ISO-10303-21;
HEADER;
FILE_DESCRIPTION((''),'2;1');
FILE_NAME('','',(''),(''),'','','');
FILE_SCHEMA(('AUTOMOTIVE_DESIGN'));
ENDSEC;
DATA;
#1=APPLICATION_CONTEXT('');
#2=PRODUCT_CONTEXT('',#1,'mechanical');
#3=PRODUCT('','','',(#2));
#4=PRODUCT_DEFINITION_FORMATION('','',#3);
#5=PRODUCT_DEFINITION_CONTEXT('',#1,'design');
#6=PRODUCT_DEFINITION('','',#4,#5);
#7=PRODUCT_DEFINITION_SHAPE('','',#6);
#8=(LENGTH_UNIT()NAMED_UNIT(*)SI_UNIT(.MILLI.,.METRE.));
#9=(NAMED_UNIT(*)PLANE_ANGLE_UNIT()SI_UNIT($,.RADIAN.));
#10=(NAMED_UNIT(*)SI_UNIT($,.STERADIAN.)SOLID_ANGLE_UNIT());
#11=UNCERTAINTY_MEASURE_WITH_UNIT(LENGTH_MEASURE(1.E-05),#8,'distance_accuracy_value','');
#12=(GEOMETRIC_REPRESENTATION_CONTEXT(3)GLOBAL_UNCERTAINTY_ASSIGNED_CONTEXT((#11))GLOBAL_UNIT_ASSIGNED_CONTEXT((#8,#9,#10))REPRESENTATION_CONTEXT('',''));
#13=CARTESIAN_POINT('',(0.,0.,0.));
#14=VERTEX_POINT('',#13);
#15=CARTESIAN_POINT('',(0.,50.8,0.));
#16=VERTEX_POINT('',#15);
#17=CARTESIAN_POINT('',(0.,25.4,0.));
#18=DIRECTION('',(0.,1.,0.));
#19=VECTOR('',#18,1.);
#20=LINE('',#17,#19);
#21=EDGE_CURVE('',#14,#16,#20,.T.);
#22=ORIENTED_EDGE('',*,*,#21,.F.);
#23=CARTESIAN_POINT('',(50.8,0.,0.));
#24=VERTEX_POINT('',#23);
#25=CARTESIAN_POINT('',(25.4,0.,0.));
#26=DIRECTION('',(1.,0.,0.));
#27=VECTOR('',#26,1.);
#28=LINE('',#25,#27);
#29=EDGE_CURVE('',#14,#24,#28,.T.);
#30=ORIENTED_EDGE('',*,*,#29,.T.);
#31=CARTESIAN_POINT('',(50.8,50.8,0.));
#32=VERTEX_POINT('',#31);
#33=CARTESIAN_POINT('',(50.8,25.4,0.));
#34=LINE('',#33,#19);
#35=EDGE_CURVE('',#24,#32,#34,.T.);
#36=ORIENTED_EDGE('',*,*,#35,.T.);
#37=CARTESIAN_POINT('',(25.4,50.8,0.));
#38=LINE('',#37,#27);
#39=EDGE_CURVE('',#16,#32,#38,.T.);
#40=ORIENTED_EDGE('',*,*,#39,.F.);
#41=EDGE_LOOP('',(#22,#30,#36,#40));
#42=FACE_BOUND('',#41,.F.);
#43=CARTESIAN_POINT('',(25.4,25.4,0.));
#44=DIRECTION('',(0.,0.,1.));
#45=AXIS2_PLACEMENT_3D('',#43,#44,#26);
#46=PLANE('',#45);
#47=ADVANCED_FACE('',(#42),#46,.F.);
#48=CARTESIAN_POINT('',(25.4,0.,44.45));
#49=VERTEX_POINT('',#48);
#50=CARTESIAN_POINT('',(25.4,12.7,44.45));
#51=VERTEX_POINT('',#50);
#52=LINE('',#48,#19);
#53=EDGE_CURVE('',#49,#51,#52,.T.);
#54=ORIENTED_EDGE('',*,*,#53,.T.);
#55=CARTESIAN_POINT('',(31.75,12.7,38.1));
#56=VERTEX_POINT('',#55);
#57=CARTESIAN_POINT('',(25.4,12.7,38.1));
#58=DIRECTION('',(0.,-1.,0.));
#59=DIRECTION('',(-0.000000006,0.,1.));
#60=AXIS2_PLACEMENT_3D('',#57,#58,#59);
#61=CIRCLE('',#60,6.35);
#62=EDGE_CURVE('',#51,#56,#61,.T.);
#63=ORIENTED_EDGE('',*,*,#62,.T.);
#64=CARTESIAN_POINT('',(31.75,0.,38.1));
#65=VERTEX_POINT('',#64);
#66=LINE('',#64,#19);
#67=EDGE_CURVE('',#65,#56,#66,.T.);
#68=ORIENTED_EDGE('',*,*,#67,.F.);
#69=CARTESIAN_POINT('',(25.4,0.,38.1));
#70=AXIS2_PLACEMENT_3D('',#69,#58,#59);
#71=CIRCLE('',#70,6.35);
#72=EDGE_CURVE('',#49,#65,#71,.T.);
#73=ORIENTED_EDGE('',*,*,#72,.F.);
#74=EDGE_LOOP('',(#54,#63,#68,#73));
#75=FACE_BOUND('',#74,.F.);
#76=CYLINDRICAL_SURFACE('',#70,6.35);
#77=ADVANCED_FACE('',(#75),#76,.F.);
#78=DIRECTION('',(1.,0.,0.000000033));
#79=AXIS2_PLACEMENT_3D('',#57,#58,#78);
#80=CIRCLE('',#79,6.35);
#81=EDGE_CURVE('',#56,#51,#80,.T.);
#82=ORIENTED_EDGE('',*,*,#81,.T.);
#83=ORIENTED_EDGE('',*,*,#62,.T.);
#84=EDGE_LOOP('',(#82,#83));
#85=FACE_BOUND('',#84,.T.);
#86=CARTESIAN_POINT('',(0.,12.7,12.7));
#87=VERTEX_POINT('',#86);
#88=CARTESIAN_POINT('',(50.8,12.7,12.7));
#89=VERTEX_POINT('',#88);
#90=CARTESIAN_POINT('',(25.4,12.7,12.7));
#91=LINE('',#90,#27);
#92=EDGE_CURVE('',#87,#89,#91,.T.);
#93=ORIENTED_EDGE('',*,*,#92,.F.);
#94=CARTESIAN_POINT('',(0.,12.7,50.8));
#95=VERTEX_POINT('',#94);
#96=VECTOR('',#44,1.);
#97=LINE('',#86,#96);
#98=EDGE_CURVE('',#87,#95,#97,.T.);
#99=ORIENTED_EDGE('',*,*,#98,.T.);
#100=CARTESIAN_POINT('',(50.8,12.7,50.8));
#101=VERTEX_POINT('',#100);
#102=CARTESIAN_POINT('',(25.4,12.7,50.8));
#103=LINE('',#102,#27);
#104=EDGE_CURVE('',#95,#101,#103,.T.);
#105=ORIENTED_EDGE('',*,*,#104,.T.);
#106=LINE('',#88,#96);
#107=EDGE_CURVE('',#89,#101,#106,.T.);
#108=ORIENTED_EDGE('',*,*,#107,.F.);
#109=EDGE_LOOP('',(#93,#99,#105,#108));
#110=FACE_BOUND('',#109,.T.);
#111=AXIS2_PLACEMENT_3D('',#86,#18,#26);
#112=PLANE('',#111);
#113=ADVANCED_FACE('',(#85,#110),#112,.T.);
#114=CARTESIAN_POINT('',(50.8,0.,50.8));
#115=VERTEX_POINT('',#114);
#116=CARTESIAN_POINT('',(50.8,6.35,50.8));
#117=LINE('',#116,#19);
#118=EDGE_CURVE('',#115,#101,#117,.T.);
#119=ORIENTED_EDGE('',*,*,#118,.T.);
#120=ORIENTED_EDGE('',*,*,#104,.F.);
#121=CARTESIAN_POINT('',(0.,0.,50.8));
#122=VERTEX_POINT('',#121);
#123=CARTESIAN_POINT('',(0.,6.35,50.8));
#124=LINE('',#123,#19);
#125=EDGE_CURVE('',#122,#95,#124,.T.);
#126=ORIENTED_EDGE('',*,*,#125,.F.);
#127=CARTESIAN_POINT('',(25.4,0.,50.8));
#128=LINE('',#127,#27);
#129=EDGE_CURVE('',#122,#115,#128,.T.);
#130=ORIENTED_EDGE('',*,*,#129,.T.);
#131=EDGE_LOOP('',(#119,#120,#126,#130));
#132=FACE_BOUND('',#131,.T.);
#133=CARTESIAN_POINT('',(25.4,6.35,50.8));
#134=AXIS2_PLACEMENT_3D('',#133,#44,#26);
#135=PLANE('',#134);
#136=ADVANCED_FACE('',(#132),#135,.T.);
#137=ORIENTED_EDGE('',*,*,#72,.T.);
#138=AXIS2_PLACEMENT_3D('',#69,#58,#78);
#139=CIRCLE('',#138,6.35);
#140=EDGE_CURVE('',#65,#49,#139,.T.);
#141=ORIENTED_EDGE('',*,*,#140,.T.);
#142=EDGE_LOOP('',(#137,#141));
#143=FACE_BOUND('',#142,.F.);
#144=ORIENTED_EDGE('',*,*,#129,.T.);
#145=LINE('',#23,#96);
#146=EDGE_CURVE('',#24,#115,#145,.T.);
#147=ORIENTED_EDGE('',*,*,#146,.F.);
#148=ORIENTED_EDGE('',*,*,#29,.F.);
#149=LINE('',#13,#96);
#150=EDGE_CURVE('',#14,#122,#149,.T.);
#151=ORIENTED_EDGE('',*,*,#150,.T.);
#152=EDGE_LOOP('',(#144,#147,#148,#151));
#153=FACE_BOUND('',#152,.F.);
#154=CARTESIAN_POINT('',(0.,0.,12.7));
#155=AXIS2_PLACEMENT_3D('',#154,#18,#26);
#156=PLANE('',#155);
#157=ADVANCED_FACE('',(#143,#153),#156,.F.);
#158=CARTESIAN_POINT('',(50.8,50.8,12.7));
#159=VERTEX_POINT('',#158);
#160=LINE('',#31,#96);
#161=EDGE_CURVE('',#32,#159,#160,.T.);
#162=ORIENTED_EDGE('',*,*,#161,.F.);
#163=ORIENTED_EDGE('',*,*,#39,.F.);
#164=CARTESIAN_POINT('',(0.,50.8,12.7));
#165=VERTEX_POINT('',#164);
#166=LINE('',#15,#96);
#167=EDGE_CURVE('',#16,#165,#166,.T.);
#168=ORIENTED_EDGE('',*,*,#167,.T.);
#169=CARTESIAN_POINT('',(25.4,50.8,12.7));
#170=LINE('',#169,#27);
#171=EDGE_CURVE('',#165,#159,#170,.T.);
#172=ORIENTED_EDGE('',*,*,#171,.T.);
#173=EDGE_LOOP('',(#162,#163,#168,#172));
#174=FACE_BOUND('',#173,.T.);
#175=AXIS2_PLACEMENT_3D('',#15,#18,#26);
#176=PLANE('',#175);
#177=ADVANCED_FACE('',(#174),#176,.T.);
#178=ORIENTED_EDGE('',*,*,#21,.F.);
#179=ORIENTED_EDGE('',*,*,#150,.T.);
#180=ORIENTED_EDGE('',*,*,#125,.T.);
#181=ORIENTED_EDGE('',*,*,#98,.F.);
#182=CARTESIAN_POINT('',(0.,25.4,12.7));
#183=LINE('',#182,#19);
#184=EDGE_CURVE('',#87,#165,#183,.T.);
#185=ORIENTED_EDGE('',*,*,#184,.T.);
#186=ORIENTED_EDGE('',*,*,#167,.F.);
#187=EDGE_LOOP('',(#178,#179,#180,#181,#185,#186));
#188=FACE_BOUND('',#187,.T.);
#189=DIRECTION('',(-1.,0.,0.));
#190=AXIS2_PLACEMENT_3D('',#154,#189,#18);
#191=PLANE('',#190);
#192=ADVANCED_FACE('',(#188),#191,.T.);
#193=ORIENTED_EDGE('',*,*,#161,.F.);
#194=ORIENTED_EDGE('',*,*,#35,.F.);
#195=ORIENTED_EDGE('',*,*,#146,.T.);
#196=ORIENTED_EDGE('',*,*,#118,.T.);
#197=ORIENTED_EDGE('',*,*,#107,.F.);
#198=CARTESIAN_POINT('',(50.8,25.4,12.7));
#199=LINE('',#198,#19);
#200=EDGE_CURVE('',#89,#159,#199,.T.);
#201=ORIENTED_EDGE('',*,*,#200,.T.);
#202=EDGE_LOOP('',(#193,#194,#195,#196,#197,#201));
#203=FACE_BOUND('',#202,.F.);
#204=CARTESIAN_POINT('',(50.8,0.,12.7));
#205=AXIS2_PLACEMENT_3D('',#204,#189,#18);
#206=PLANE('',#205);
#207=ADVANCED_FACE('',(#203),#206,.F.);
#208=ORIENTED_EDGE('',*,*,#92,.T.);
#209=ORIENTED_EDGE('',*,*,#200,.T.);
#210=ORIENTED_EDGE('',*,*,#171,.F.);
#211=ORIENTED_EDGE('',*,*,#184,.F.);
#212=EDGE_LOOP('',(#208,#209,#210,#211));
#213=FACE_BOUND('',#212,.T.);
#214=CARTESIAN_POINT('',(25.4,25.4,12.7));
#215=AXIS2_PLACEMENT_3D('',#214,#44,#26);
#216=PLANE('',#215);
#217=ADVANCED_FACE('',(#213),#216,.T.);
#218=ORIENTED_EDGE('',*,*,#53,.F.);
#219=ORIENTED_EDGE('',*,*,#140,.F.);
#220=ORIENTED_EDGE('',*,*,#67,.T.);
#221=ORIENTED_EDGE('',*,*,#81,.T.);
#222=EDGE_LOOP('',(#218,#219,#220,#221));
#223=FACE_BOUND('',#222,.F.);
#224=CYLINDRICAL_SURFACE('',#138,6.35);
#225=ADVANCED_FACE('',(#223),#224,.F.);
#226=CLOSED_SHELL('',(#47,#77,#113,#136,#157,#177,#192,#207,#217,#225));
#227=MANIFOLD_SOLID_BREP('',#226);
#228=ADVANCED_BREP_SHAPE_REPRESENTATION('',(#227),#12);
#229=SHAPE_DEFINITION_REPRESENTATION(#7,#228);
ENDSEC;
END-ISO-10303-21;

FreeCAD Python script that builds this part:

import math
import FreeCAD as App
import Part
import Sketcher
Q = App.Units.Quantity


def add_polygon(sketch, points):
    """Adds a closed chain of lines whose ends are joined by coincident constraints."""
    first, n = sketch.GeometryCount, len(points)
    for a, b in zip(points, points[1:] + points[:1]):
        sketch.addGeometry(Part.LineSegment(App.Vector(*a, 0), App.Vector(*b, 0)), False)
    for i in range(n):
        sketch.addConstraint(Sketcher.Constraint("Coincident", first + i, 2, first + (i + 1) % n, 1))

doc = App.newDocument("Part")
params = doc.addObject("Spreadsheet::Sheet", "Params")
for row, (alias, value) in enumerate([
    ("sketch1_width", "2 in"),
    ("pad1_length", "0.5 in"),
    ("sketch2_width", "2 in"),
    ("sketch2_height", "0.5 in"),
    ("pad2_length", "1.5 in"),
    ("sketch3_radius", "0.25 in"),
    ("pocket1_length", "1 in"),
], start=1):
    params.set(f"A{row}", alias)
    params.set(f"B{row}", "=" + value)
    params.setAlias(f"B{row}", alias)

body = doc.addObject("PartDesign::Body", "Body")

# Sketch on XY plane
sketch1 = body.newObject("Sketcher::SketchObject", "Sketch")
sketch1.AttachmentSupport = (doc.getObject("XY_Plane"), [""])
sketch1.MapMode = "FlatFace"
add_polygon(sketch1, [(0, 51), (0, 0), (51, 0), (51, 51)])  # lines 0-3
sketch1.addConstraint([
    Sketcher.Constraint("Vertical", 0),
    Sketcher.Constraint("Horizontal", 1),
    Sketcher.Constraint("Vertical", 2),
    Sketcher.Constraint("Horizontal", 3),
    Sketcher.Constraint("Coincident", 0, 2, -1, 1),
    Sketcher.Constraint("Equal", 3, 0),
    Sketcher.Constraint("DistanceX", 1, 1, 1, 2, Q("2 in")),
])
sketch1.setExpression("Constraints[10]", "Params.sketch1_width")
pad1 = body.newObject("PartDesign::Pad", "Pad")
pad1.Profile = sketch1
pad1.setExpression("Length", "Params.pad1_length")

# Sketch on XY plane
sketch2 = body.newObject("Sketcher::SketchObject", "Sketch001")
sketch2.AttachmentSupport = (doc.getObject("XY_Plane"), [""])
sketch2.MapMode = "FlatFace"
sketch2.AttachmentOffset = App.Placement(App.Vector(0, 0, 0.5 * 25.4), App.Rotation())
add_polygon(sketch2, [(0, 13), (0, 0), (51, 0), (51, 13)])  # lines 0-3
sketch2.addConstraint([
    Sketcher.Constraint("Vertical", 0),
    Sketcher.Constraint("Horizontal", 1),
    Sketcher.Constraint("Vertical", 2),
    Sketcher.Constraint("Horizontal", 3),
    Sketcher.Constraint("Coincident", 0, 2, -1, 1),
    Sketcher.Constraint("DistanceX", 1, 1, 1, 2, Q("2 in")),
    Sketcher.Constraint("DistanceY", 0, 2, 0, 1, Q("0.5 in")),
])
sketch2.setExpression("Constraints[9]", "Params.sketch2_width")
sketch2.setExpression("Constraints[10]", "Params.sketch2_height")
pad2 = body.newObject("PartDesign::Pad", "Pad001")
pad2.Profile = sketch2
pad2.setExpression("Length", "Params.pad2_length")

# Sketch on XZ plane
sketch3 = body.newObject("Sketcher::SketchObject", "Sketch002")
sketch3.AttachmentSupport = (doc.getObject("XZ_Plane"), [""])
sketch3.MapMode = "FlatFace"
sketch3.addGeometry([
    Part.ArcOfCircle(Part.Circle(App.Vector(25, 38, 0), App.Vector(0, 0, 1), 6), math.radians(0), math.radians(90)),
    Part.ArcOfCircle(Part.Circle(App.Vector(25, 38, 0), App.Vector(0, 0, 1), 6), math.radians(90), math.radians(360)),
], False)
sketch3.addConstraint([
    Sketcher.Constraint("Tangent", 0, 1, 1, 2),
    Sketcher.Constraint("Coincident", 1, 1, 0, 2),
    Sketcher.Constraint("Horizontal", 1, 3, 0, 1),
    Sketcher.Constraint("Vertical", 0, 3, 1, 1),
    Sketcher.Constraint("Radius", 0, Q("0.25 in")),
    Sketcher.Constraint("DistanceX", -1, 1, 0, 3, Q("1 in")),
    Sketcher.Constraint("DistanceY", -1, 1, 0, 3, Q("1.5 in")),
])
sketch3.setExpression("Constraints[4]", "Params.sketch3_radius")
pocket1 = body.newObject("PartDesign::Pocket", "Pocket")
pocket1.Profile = sketch3
pocket1.setExpression("Length", "Params.pocket1_length")

doc.recompute()
